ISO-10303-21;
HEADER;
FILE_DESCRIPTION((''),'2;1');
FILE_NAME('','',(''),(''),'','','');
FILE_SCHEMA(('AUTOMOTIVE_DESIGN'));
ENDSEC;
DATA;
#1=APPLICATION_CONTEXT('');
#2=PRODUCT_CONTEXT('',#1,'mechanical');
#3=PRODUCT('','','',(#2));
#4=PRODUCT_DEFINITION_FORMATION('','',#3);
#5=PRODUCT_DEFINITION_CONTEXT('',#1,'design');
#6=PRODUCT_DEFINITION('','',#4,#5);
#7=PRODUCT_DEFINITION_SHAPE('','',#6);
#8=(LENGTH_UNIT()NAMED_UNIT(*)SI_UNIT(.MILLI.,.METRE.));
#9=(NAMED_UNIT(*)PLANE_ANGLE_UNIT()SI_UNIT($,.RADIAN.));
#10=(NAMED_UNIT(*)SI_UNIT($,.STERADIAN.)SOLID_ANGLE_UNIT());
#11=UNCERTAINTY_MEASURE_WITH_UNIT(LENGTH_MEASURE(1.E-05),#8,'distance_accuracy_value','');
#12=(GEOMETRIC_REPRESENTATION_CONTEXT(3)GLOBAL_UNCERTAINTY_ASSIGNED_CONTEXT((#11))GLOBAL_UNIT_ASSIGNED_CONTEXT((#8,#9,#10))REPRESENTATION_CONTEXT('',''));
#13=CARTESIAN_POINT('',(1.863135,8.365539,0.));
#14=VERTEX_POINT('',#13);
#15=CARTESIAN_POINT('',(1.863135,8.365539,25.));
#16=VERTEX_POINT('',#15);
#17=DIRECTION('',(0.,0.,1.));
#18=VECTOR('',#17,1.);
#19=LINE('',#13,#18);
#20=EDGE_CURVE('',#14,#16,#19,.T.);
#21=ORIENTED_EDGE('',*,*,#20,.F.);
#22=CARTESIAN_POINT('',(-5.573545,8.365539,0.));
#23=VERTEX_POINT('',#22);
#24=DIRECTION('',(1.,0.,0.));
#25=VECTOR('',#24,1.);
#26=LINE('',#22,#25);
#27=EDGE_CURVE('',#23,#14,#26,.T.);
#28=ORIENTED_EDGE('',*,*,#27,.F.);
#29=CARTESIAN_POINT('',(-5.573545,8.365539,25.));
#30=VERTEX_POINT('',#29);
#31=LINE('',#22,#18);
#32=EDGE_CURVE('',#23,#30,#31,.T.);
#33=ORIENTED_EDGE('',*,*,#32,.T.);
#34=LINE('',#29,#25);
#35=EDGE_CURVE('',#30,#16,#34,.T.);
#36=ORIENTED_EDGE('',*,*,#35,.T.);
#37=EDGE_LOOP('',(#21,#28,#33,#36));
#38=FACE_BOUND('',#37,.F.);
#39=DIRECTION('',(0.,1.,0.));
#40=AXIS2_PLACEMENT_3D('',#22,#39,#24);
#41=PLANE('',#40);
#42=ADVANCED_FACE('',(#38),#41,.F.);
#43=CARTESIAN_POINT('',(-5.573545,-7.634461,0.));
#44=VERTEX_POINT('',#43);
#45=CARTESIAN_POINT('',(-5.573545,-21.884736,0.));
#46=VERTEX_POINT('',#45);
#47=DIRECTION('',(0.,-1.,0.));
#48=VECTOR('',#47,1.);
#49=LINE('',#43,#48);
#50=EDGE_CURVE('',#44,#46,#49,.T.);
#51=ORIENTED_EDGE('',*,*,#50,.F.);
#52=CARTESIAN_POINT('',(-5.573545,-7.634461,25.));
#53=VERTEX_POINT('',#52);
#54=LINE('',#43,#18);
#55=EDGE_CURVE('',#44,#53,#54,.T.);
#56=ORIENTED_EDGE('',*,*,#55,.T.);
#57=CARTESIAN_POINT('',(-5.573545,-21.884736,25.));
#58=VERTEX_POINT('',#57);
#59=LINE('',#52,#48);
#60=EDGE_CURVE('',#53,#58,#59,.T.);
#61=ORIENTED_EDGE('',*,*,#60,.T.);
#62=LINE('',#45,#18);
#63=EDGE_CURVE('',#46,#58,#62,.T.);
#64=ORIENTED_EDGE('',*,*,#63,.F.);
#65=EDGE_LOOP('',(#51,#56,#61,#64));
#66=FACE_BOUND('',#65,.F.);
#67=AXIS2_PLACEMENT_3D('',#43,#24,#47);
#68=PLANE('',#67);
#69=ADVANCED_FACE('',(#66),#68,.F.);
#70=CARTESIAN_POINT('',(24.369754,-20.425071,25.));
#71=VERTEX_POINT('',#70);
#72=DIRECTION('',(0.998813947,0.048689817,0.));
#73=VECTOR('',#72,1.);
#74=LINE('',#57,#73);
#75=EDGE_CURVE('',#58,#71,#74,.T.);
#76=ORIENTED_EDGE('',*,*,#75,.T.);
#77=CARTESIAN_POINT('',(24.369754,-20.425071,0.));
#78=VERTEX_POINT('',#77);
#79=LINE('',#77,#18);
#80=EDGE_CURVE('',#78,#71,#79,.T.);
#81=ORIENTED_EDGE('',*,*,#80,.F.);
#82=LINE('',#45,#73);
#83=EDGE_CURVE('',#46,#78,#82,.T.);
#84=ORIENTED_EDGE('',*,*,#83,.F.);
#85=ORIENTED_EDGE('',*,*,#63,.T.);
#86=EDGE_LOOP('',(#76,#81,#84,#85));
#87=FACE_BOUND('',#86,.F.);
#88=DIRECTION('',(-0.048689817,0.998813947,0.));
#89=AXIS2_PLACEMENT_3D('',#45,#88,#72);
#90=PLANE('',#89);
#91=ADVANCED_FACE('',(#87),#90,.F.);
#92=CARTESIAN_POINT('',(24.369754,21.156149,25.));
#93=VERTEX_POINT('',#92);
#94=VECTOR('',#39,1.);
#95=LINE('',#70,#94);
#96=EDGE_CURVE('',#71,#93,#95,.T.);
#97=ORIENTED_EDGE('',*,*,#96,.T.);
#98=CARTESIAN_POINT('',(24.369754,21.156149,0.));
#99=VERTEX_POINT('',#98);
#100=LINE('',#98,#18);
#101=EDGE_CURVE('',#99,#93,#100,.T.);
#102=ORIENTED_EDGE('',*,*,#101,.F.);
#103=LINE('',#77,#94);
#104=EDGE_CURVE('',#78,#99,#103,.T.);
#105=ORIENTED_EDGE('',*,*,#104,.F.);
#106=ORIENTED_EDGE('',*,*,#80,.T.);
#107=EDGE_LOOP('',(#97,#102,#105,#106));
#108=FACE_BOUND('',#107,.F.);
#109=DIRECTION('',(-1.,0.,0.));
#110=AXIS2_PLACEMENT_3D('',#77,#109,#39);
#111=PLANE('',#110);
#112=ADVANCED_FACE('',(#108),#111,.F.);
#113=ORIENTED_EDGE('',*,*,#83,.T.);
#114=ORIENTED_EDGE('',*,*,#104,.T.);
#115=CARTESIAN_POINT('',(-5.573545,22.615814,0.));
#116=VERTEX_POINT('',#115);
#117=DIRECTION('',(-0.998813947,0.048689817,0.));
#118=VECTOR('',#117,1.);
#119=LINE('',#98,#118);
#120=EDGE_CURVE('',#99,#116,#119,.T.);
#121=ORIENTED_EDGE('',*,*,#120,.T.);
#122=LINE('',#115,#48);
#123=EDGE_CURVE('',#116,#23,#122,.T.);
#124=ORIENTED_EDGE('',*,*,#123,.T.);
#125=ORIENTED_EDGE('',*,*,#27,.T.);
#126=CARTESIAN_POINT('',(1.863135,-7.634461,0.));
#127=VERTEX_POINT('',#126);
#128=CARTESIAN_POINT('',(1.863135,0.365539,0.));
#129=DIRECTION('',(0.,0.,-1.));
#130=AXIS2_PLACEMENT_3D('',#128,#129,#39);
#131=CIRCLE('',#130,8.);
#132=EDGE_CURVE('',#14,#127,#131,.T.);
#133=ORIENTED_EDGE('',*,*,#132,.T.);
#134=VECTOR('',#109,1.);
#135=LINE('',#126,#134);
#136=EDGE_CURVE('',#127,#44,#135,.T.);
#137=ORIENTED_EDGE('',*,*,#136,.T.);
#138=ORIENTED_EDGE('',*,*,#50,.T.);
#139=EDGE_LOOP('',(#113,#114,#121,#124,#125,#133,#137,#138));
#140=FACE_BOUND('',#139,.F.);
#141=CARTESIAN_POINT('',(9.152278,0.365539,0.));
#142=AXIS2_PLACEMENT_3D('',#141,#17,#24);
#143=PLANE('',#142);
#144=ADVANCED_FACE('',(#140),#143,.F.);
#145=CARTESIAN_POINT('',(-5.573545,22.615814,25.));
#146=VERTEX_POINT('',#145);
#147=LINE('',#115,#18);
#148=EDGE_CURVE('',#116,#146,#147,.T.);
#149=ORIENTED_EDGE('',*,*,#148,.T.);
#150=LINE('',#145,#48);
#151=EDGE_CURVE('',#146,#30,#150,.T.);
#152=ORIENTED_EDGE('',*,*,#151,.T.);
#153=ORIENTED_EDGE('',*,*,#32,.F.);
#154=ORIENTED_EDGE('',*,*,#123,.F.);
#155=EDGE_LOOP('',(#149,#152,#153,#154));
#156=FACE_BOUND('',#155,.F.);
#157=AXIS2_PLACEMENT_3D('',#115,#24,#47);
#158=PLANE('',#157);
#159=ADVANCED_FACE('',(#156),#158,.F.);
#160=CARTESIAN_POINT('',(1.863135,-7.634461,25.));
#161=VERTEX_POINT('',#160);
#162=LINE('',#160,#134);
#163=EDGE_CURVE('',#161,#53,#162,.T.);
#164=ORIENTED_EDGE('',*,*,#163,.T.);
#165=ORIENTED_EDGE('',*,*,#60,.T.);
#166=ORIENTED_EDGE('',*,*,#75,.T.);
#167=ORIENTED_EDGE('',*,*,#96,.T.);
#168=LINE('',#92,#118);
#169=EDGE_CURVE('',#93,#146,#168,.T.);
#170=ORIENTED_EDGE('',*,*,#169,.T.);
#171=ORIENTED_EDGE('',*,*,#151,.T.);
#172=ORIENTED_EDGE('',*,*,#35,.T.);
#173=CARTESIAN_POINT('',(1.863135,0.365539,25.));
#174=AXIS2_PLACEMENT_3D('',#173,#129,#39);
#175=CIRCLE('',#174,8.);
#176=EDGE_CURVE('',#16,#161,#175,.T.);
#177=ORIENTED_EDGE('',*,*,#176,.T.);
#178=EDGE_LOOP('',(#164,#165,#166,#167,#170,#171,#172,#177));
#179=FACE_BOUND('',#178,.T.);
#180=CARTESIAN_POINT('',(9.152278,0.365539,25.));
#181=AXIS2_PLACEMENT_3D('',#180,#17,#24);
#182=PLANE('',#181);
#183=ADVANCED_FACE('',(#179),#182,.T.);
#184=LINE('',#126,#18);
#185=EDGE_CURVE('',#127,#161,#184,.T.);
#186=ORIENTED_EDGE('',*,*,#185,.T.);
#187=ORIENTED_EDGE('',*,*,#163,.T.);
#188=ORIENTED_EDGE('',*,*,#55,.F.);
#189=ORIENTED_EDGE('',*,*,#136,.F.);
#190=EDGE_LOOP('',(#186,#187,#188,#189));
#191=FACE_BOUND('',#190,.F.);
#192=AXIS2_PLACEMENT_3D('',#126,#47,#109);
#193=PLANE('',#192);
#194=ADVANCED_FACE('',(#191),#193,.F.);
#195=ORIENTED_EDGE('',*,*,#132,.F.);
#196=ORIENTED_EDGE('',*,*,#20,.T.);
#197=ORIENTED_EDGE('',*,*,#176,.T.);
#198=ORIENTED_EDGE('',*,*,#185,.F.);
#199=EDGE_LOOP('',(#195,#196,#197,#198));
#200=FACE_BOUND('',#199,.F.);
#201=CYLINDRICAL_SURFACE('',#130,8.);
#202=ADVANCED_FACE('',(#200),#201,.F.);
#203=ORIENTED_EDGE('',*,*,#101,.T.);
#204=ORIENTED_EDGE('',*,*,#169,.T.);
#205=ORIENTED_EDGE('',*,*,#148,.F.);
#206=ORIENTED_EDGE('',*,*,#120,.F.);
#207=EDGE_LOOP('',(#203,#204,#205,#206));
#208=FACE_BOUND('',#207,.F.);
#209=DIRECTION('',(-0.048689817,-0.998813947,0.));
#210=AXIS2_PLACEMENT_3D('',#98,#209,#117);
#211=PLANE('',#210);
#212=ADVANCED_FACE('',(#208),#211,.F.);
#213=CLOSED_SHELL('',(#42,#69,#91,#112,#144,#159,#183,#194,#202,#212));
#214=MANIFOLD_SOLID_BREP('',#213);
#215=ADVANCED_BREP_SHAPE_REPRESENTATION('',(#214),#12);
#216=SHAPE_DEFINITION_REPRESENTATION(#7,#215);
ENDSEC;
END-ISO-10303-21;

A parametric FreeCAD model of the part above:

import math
import FreeCAD as App
import Part
import Sketcher

V = App.Vector
Q = App.Units.Quantity

doc = App.newDocument("Part")
body = doc.addObject("PartDesign::Body", "Body")

sketch1 = body.newObject("Sketcher::SketchObject", "Sketch")
sketch1.AttachmentSupport = (doc.getObject("XY_Plane"), [""])
sketch1.MapMode = "FlatFace"
sketch1.addGeometry(Part.ArcOfCircle(Part.Circle(V(2, 0, 0), V(0, 0, 1), 8), math.radians(-90), math.radians(90)), False)
sketch1.addGeometry(Part.LineSegment(V(2, -8, 0), V(-6, -8, 0)), False)
sketch1.addGeometry(Part.LineSegment(V(-6, -8, 0), V(-6, -22, 0)), False)
sketch1.addGeometry(Part.LineSegment(V(-6, -22, 0), V(24, -20, 0)), False)
sketch1.addGeometry(Part.LineSegment(V(24, -20, 0), V(24, 21, 0)), False)
sketch1.addGeometry(Part.LineSegment(V(24, 21, 0), V(-6, 23, 0)), False)
sketch1.addGeometry(Part.LineSegment(V(-6, 23, 0), V(-6, 8, 0)), False)
sketch1.addGeometry(Part.LineSegment(V(-6, 8, 0), V(2, 8, 0)), False)
sketch1.addConstraint(Sketcher.Constraint("Tangent", 0, 1, 1, 1))
sketch1.addConstraint(Sketcher.Constraint("Coincident", 1, 2, 2, 1))
sketch1.addConstraint(Sketcher.Constraint("Coincident", 2, 2, 3, 1))
sketch1.addConstraint(Sketcher.Constraint("Coincident", 3, 2, 4, 1))
sketch1.addConstraint(Sketcher.Constraint("Coincident", 4, 2, 5, 1))
sketch1.addConstraint(Sketcher.Constraint("Coincident", 5, 2, 6, 1))
sketch1.addConstraint(Sketcher.Constraint("Coincident", 6, 2, 7, 1))
sketch1.addConstraint(Sketcher.Constraint("Tangent", 7, 2, 0, 2))
sketch1.addConstraint(Sketcher.Constraint("Horizontal", 1))
sketch1.addConstraint(Sketcher.Constraint("Vertical", 2))
sketch1.addConstraint(Sketcher.Constraint("Vertical", 4))
sketch1.addConstraint(Sketcher.Constraint("Vertical", 6))
sketch1.addConstraint(Sketcher.Constraint("Horizontal", 7))
sketch1.addConstraint(Sketcher.Constraint("Vertical", 2, 2, 5, 2))
sketch1.addConstraint(Sketcher.Constraint("Equal", 2, 6))
sketch1.addConstraint(Sketcher.Constraint("Equal", 3, 5))
sketch1.addConstraint(Sketcher.Constraint("Radius", 0, Q("8 mm")))
sketch1.addConstraint(Sketcher.Constraint("DistanceX", 1, 2, 1, 1, Q("7.43668 mm")))
sketch1.addConstraint(Sketcher.Constraint("DistanceY", 4, 1, 4, 2, Q("41.58122 mm")))
sketch1.addConstraint(Sketcher.Constraint("DistanceX", 2, 2, 3, 2, Q("29.943299 mm")))
sketch1.addConstraint(Sketcher.Constraint("DistanceY", 2, 2, 2, 1, Q("14.250275 mm")))
sketch1.addConstraint(Sketcher.Constraint("DistanceY", -1, 1, 0, 3, Q("0.365539 mm")))
sketch1.addConstraint(Sketcher.Constraint("DistanceX", -1, 1, 0, 3, Q("1.863135 mm")))
pad1 = body.newObject("PartDesign::Pad", "Pad")
pad1.Profile = sketch1
pad1.Length = 25

doc.recompute()
